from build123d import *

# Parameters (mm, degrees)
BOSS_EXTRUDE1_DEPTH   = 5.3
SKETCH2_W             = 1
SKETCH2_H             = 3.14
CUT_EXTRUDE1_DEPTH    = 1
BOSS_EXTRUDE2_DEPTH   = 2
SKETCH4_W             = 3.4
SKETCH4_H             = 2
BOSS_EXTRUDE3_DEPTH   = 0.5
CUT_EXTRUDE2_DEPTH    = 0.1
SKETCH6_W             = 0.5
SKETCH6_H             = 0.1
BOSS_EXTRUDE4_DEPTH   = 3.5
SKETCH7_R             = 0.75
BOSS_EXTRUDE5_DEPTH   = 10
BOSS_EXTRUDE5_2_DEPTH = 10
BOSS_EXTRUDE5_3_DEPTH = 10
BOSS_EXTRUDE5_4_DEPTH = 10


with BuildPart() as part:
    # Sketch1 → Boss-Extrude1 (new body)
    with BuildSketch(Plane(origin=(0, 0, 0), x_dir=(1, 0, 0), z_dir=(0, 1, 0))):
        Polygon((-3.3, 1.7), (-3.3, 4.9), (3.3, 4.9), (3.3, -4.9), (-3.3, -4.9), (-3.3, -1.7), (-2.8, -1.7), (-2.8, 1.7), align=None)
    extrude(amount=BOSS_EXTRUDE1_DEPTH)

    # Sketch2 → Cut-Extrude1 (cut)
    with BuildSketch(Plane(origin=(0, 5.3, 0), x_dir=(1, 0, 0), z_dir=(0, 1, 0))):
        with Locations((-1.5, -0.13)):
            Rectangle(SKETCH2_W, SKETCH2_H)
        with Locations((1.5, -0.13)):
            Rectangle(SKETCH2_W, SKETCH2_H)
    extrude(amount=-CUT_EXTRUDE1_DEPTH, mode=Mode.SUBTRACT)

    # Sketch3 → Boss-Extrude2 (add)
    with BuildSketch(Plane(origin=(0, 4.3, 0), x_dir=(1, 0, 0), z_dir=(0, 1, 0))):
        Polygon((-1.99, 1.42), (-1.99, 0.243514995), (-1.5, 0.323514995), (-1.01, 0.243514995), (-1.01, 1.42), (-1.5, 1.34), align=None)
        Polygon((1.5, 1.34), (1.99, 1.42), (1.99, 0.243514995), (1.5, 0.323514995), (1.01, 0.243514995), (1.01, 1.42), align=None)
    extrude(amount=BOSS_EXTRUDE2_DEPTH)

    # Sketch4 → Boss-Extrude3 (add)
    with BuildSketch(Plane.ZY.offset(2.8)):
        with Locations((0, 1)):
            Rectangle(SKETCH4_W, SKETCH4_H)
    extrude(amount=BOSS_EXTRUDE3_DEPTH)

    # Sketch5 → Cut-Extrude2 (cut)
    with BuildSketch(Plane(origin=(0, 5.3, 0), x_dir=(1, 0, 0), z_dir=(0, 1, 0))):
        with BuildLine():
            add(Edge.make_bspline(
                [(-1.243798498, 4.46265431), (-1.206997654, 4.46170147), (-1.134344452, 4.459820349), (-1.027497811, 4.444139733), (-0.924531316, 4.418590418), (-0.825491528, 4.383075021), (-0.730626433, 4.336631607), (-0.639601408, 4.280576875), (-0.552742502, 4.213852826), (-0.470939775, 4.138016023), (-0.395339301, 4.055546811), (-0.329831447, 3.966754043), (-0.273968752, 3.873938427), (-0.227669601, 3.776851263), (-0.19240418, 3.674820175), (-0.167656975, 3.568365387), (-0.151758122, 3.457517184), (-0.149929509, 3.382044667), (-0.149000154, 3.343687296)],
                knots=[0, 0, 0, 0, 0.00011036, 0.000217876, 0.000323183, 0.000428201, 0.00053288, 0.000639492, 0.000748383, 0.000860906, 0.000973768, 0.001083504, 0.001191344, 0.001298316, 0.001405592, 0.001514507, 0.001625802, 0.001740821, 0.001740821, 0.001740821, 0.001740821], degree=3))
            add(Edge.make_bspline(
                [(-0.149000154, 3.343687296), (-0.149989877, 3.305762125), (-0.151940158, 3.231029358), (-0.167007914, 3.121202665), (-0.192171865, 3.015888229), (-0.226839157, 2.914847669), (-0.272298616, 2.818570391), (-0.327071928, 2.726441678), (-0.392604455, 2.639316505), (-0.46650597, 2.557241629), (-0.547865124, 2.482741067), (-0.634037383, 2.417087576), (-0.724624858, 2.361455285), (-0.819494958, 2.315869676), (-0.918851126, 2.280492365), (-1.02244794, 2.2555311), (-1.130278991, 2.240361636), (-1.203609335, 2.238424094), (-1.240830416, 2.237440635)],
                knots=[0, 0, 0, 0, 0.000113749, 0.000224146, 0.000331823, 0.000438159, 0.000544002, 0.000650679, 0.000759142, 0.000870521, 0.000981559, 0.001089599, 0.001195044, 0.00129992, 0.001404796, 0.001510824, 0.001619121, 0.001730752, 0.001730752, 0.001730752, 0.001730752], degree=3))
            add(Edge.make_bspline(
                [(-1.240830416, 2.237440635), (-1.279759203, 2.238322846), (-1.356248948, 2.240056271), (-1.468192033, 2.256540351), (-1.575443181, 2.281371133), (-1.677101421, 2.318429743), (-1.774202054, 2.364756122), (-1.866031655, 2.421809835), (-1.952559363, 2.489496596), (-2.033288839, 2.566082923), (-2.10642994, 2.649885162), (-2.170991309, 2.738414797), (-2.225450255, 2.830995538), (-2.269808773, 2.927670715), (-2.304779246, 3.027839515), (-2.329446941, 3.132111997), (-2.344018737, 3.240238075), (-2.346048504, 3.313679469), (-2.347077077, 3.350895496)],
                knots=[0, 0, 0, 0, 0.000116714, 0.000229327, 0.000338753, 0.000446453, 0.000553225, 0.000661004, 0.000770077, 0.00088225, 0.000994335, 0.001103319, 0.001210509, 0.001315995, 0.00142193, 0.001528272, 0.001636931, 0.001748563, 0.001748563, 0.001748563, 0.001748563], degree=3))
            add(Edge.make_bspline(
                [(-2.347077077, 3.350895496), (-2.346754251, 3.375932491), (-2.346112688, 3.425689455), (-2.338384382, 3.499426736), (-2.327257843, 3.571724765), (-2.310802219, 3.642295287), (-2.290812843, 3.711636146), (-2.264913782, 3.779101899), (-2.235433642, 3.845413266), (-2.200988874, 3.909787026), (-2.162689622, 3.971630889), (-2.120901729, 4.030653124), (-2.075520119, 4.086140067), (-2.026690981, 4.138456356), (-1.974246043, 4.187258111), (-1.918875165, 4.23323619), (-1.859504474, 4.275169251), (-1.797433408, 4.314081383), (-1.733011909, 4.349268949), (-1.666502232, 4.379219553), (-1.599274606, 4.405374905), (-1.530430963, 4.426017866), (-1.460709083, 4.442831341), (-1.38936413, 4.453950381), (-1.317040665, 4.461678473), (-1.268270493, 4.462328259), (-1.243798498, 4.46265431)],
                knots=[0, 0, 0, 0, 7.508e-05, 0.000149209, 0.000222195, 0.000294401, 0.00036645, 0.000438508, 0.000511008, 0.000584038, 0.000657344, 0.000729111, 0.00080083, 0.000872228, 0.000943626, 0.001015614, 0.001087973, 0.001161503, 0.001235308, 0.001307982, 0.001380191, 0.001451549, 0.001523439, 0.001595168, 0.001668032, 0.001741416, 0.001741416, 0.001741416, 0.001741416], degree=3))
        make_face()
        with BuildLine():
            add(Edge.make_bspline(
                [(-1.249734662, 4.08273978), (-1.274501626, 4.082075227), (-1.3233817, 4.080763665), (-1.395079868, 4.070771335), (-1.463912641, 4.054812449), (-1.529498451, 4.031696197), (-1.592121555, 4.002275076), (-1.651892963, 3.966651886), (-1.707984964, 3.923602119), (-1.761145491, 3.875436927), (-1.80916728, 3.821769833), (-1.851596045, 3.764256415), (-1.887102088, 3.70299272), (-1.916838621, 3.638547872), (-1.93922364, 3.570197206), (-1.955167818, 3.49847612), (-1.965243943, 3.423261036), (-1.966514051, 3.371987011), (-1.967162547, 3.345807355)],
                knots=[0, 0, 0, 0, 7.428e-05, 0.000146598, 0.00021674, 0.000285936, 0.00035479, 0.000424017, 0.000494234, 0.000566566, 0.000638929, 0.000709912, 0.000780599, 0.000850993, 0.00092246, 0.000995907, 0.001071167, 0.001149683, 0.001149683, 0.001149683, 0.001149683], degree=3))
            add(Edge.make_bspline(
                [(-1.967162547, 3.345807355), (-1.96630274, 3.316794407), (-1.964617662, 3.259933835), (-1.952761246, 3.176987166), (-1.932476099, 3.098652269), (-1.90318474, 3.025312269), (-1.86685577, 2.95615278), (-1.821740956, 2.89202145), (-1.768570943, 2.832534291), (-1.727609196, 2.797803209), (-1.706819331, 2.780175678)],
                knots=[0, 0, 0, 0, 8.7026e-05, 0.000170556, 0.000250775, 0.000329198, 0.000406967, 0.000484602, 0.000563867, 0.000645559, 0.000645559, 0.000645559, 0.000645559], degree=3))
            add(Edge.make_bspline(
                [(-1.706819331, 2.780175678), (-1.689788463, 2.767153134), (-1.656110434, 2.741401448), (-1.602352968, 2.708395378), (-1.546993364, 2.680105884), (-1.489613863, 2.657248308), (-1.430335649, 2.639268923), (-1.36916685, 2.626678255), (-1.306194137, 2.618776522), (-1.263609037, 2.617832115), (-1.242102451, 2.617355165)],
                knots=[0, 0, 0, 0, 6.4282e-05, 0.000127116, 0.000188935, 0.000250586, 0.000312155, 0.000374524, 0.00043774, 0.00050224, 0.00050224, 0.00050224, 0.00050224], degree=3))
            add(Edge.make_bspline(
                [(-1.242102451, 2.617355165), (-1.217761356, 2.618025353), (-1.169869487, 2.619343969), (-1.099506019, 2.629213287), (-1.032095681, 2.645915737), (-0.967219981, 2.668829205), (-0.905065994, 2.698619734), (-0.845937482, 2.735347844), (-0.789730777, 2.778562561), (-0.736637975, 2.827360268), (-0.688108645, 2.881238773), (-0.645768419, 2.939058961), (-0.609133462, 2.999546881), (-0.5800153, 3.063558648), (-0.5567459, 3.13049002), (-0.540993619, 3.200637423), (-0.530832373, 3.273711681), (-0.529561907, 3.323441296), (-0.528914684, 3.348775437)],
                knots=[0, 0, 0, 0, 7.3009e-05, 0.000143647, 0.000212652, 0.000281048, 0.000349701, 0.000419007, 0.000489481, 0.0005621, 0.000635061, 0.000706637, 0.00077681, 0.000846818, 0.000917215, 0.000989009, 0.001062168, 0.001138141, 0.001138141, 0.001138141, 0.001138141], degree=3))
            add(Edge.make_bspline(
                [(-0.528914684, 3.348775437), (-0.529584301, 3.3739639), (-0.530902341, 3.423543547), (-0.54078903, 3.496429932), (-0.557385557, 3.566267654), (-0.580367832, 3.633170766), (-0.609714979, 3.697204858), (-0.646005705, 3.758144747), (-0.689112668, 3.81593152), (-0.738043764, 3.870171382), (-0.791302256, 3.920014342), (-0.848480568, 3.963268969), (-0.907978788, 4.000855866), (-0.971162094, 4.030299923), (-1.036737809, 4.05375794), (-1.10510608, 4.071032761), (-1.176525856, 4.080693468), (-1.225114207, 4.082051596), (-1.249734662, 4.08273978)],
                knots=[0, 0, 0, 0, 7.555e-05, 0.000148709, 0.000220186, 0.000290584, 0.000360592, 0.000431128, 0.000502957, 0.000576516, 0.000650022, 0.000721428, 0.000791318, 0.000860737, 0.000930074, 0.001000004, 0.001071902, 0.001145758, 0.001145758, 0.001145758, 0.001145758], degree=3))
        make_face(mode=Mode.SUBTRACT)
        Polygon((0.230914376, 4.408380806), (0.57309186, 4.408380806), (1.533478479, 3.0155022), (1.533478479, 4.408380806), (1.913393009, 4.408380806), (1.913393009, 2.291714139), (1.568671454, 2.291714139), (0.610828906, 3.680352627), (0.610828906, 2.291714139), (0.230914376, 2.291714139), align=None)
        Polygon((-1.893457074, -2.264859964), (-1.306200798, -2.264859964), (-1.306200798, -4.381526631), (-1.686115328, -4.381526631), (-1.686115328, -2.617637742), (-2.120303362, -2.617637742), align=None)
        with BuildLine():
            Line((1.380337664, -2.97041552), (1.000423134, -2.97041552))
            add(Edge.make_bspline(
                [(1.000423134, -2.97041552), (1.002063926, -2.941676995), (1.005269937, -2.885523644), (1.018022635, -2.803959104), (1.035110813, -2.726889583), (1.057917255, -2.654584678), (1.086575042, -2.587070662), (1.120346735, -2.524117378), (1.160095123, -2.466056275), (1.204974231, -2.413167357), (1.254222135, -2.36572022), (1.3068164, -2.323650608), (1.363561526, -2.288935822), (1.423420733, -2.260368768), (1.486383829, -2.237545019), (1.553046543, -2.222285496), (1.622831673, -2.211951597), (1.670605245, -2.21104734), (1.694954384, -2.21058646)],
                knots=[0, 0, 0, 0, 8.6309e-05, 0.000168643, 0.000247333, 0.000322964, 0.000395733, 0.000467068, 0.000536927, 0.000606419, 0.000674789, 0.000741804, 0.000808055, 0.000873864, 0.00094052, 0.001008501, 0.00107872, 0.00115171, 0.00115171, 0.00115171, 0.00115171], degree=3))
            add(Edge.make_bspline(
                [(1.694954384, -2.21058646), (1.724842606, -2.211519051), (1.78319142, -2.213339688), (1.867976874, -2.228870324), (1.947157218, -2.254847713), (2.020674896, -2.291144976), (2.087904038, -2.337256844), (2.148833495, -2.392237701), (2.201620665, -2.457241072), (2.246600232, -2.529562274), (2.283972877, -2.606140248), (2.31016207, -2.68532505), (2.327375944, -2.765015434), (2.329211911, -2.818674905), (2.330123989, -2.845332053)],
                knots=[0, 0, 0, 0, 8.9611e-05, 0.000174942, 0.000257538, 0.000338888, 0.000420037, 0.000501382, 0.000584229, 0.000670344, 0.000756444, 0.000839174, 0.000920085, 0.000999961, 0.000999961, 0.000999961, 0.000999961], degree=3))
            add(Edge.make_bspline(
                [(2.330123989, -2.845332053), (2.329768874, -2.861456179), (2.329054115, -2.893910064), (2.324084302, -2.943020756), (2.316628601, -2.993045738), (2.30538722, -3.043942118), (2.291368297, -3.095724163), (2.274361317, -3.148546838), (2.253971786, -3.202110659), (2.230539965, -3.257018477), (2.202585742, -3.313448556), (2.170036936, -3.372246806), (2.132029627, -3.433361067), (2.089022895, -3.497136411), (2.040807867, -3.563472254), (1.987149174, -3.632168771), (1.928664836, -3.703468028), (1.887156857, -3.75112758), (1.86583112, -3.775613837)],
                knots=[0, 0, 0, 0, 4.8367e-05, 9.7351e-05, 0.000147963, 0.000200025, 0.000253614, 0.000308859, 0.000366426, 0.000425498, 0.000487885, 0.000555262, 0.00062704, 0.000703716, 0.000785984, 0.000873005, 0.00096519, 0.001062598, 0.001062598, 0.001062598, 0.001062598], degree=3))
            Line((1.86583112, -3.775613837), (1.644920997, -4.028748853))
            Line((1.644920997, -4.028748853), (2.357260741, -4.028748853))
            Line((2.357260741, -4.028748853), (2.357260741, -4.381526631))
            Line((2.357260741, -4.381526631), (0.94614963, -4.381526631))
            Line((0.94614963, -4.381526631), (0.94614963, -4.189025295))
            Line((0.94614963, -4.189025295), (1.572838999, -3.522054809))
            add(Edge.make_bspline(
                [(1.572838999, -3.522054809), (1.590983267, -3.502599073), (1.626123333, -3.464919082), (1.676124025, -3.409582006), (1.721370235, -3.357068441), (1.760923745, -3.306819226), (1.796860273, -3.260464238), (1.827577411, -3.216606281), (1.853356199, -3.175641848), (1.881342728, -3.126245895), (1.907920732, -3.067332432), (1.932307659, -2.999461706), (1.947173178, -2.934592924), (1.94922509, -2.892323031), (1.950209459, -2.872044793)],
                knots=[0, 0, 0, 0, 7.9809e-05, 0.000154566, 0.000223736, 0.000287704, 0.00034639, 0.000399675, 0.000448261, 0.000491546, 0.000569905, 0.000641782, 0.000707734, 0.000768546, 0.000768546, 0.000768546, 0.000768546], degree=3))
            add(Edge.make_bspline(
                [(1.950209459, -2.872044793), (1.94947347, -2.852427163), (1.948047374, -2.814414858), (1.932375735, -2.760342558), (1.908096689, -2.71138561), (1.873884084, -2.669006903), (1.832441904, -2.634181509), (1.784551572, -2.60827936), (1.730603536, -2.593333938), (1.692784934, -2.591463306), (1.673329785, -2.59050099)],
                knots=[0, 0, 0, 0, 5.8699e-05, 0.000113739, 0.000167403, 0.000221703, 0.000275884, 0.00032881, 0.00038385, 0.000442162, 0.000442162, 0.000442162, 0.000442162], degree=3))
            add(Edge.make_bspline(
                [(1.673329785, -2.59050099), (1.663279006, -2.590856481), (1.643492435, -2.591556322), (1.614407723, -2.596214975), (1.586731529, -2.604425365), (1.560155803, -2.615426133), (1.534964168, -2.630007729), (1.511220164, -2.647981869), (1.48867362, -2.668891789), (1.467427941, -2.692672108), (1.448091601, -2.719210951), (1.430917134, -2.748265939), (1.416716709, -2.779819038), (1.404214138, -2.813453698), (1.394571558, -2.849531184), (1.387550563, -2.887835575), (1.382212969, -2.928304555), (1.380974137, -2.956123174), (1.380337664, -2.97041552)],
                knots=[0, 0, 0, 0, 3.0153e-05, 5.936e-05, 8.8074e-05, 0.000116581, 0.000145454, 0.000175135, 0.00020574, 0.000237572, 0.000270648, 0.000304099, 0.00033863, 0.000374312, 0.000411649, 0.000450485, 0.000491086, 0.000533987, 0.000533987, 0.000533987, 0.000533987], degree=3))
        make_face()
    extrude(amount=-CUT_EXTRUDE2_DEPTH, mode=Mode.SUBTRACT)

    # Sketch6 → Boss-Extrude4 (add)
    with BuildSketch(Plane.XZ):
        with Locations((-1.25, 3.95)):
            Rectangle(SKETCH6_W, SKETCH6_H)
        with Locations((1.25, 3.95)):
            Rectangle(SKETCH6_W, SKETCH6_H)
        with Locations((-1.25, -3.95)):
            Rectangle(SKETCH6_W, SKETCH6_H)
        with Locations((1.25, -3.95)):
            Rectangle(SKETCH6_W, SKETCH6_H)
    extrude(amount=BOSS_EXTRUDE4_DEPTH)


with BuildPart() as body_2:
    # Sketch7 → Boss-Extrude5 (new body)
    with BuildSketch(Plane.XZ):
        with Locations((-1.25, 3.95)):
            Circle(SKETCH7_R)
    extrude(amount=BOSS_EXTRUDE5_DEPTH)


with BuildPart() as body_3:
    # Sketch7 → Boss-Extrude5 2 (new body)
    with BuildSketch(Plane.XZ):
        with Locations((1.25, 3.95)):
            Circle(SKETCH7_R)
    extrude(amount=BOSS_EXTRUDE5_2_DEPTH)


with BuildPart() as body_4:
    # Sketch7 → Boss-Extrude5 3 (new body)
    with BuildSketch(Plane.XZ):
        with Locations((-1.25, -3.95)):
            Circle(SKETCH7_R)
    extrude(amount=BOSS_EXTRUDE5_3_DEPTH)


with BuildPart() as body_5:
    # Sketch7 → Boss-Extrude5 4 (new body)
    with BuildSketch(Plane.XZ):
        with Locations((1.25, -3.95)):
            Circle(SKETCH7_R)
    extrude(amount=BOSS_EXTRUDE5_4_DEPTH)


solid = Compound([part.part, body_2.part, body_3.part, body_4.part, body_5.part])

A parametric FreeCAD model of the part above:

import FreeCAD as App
import Part
import Sketcher
from FreeCAD import Vector
Q = App.Units.Quantity


def add_polygon(sketch, points):
    """Adds a closed chain of lines whose ends are joined by coincident constraints."""
    first, n = sketch.GeometryCount, len(points)
    for a, b in zip(points, points[1:] + points[:1]):
        sketch.addGeometry(Part.LineSegment(App.Vector(*a, 0), App.Vector(*b, 0)), False)
    for i in range(n):
        sketch.addConstraint(Sketcher.Constraint("Coincident", first + i, 2, first + (i + 1) % n, 1))

doc = App.newDocument("Part")
body = doc.addObject("PartDesign::Body", "Body")

sketch1 = doc.addObject("Sketcher::SketchObject", "Sketch")
body.addObject(sketch1)
sketch1.AttachmentSupport = (doc.XZ_Plane, [""])
sketch1.MapMode = "FlatFace"
add_polygon(sketch1, [(-3.3, -4.9), (-3.3, -1.7), (-2.8, -1.7), (-2.8, 1.7), (-3.3, 1.7), (-3.3, 4.9), (3.3, 4.9), (3.3, -4.9)])
sketch1.addConstraint([
    Sketcher.Constraint("Vertical", 0),
    Sketcher.Constraint("Horizontal", 1),
    Sketcher.Constraint("Vertical", 2),
    Sketcher.Constraint("Horizontal", 3),
    Sketcher.Constraint("Vertical", 4),
    Sketcher.Constraint("Horizontal", 5),
    Sketcher.Constraint("Vertical", 6),
    Sketcher.Constraint("Horizontal", 7),
    Sketcher.Constraint("Symmetric", 4, 2, 6, 2, -1, 1),
    Sketcher.Constraint("Symmetric", 0, 2, 3, 2, -1),
    Sketcher.Constraint("DistanceX", 1, 1, 1, 2, Q("0.5 mm")),
    Sketcher.Constraint("DistanceX", 5, 1, 5, 2, Q("6.6 mm")),
    Sketcher.Constraint("DistanceY", 0, 1, 0, 2, Q("3.2 mm")),
    Sketcher.Constraint("DistanceY", 2, 1, 2, 2, Q("3.4 mm")),
])
pad1 = doc.addObject("PartDesign::Pad", "Pad")
body.addObject(pad1)
pad1.Profile = sketch1
pad1.Length = 5.3
pad1.Reversed = True

sketch2 = doc.addObject("Sketcher::SketchObject", "Sketch001")
body.addObject(sketch2)
sketch2.AttachmentSupport = (doc.XZ_Plane, [""])
sketch2.MapMode = "FlatFace"
sketch2.AttachmentOffset = App.Placement(Vector(0, 0, -5.3), App.Rotation())
add_polygon(sketch2, [(-2, -1.4), (-2, 1.7), (-1, 1.7), (-1, -1.4)])
add_polygon(sketch2, [(1, -1.4), (1, 1.7), (2, 1.7), (2, -1.4)])
sketch2.addConstraint([
    Sketcher.Constraint("Vertical", 0),
    Sketcher.Constraint("Horizontal", 1),
    Sketcher.Constraint("Vertical", 2),
    Sketcher.Constraint("Horizontal", 3),
    Sketcher.Constraint("Vertical", 4),
    Sketcher.Constraint("Horizontal", 5),
    Sketcher.Constraint("Vertical", 6),
    Sketcher.Constraint("Horizontal", 7),
    Sketcher.Constraint("Symmetric", 1, 2, 4, 2, -2),
    Sketcher.Constraint("Symmetric", 3, 2, 6, 2, -2),
    Sketcher.Constraint("DistanceX", 1, 1, 1, 2, Q("1 mm")),
    Sketcher.Constraint("DistanceX", 0, 2, -1, 1, Q("2 mm")),
    Sketcher.Constraint("DistanceY", 0, 1, 0, 2, Q("3.14 mm")),
    Sketcher.Constraint("DistanceY", -1, 1, 0, 2, Q("1.7 mm")),
])
pocket1 = doc.addObject("PartDesign::Pocket", "Pocket")
body.addObject(pocket1)
pocket1.Profile = sketch2
pocket1.Length = 1
pocket1.Reversed = True

sketch3 = doc.addObject("Sketcher::SketchObject", "Sketch002")
body.addObject(sketch3)
sketch3.AttachmentSupport = (doc.XZ_Plane, [""])
sketch3.MapMode = "FlatFace"
sketch3.AttachmentOffset = App.Placement(Vector(0, 0, -4.3), App.Rotation())
add_polygon(sketch3, [(-1.99, -1.42), (-1.99, -0.24), (-1.5, -0.32), (-1.01, -0.24), (-1.01, -1.42), (-1.5, -1.34)])
add_polygon(sketch3, [(1.99, -1.42), (1.5, -1.34), (1.01, -1.42), (1.01, -0.24), (1.5, -0.32), (1.99, -0.24)])
sketch3.addConstraint([
    Sketcher.Constraint("Vertical", 0),
    Sketcher.Constraint("Vertical", 3),
    Sketcher.Constraint("Vertical", 8),
    Sketcher.Constraint("Vertical", 11),
    Sketcher.Constraint("Symmetric", 4, 2, 6, 2, -2),
    Sketcher.Constraint("Symmetric", 3, 2, 7, 2, -2),
    Sketcher.Constraint("Symmetric", 1, 2, 9, 2, -2),
    Sketcher.Constraint("Symmetric", 0, 2, 10, 2, -2),
    Sketcher.Constraint("Parallel", 1, 4),
    Sketcher.Constraint("Parallel", 2, 5),
    Sketcher.Constraint("Parallel", 4, 6),
    Sketcher.Constraint("Parallel", 5, 7),
    Sketcher.Constraint("Parallel", 6, 9),
    Sketcher.Constraint("Horizontal", 0, 2, 2, 2),
    Sketcher.Constraint("Horizontal", 3, 2, 5, 2),
    Sketcher.Constraint("DistanceX", 4, 2, 6, 2, Q("3 mm")),
    Sketcher.Constraint("DistanceX", 0, 2, -1, 1, Q("1.99 mm")),
    Sketcher.Constraint("DistanceY", 3, 2, -1, 1, Q("1.42 mm")),
    Sketcher.Constraint("DistanceY", 4, 2, -1, 1, Q("1.34 mm")),
    Sketcher.Constraint("DistanceY", 0, 1, 0, 2, Q("1.176485 mm")),
])
pad2 = doc.addObject("PartDesign::Pad", "Pad001")
body.addObject(pad2)
pad2.Profile = sketch3
pad2.Length = 2
pad2.Reversed = True

sketch4 = doc.addObject("Sketcher::SketchObject", "Sketch003")
body.addObject(sketch4)
sketch4.AttachmentSupport = (doc.YZ_Plane, [""])
sketch4.MapMode = "FlatFace"
sketch4.AttachmentOffset = App.Placement(Vector(0, 0, -2.8), App.Rotation())
add_polygon(sketch4, [(2, -1.7), (0, -1.7), (0, 1.7), (2, 1.7)])
sketch4.addConstraint([
    Sketcher.Constraint("Horizontal", 0),
    Sketcher.Constraint("Vertical", 1),
    Sketcher.Constraint("Horizontal", 2),
    Sketcher.Constraint("Vertical", 3),
    Sketcher.Constraint("Symmetric", 0, 2, 1, 2, -1, 1),
    Sketcher.Constraint("DistanceX", 0, 2, 0, 1, Q("2 mm")),
    Sketcher.Constraint("DistanceY", 1, 1, 1, 2, Q("3.4 mm")),
])
pad3 = doc.addObject("PartDesign::Pad", "Pad002")
body.addObject(pad3)
pad3.Profile = sketch4
pad3.Length = 0.5
pad3.Reversed = True

sketch5 = doc.addObject("Sketcher::SketchObject", "Sketch004")
body.addObject(sketch5)
sketch5.AttachmentSupport = (doc.XZ_Plane, [""])
sketch5.MapMode = "FlatFace"
sketch5.AttachmentOffset = App.Placement(Vector(0, 0, -5.3), App.Rotation())
sketch5.addGeometry(Part.BSplineCurve([Vector(-1.243798, -4.462654, 0), Vector(-1.206998, -4.461701, 0), Vector(-1.134344, -4.45982, 0), Vector(-1.027498, -4.44414, 0), Vector(-0.924531, -4.41859, 0), Vector(-0.825492, -4.383075, 0), Vector(-0.730626, -4.336632, 0), Vector(-0.639601, -4.280577, 0), Vector(-0.552743, -4.213853, 0), Vector(-0.47094, -4.138016, 0), Vector(-0.395339, -4.055547, 0), Vector(-0.329831, -3.966754, 0), Vector(-0.273969, -3.873938, 0), Vector(-0.22767, -3.776851, 0), Vector(-0.192404, -3.67482, 0), Vector(-0.167657, -3.568365, 0), Vector(-0.151758, -3.457517, 0), Vector(-0.14993, -3.382045, 0), Vector(-0.149, -3.343687, 0)], [4, 1, 1, 1, 1, 1, 1, 1, 1, 1, 1, 1, 1, 1, 1, 1, 4], [0, 0.00011036, 0.000217876, 0.000323183, 0.000428201, 0.00053288, 0.000639492, 0.000748383, 0.000860906, 0.000973768, 0.001083504, 0.001191344, 0.001298316, 0.001405592, 0.001514507, 0.001625802, 0.001740821], False, 3, [1, 1, 1, 1, 1, 1, 1, 1, 1, 1, 1, 1, 1, 1, 1, 1, 1, 1, 1], False), False)
sketch5.addGeometry(Part.BSplineCurve([Vector(-2.347077, -3.350895, 0), Vector(-2.346754, -3.375932, 0), Vector(-2.346113, -3.425689, 0), Vector(-2.338384, -3.499427, 0), Vector(-2.327258, -3.571725, 0), Vector(-2.310802, -3.642295, 0), Vector(-2.290813, -3.711636, 0), Vector(-2.264914, -3.779102, 0), Vector(-2.235434, -3.845413, 0), Vector(-2.200989, -3.909787, 0), Vector(-2.16269, -3.971631, 0), Vector(-2.120902, -4.030653, 0), Vector(-2.07552, -4.08614, 0), Vector(-2.026691, -4.138456, 0), Vector(-1.974246, -4.187258, 0), Vector(-1.918875, -4.233236, 0), Vector(-1.859504, -4.275169, 0), Vector(-1.797433, -4.314081, 0), Vector(-1.733012, -4.349269, 0), Vector(-1.666502, -4.37922, 0), Vector(-1.599275, -4.405375, 0), Vector(-1.530431, -4.426018, 0), Vector(-1.460709, -4.442831, 0), Vector(-1.389364, -4.45395, 0), Vector(-1.317041, -4.461678, 0), Vector(-1.26827, -4.462328, 0), Vector(-1.243798, -4.462654, 0)], [4, 1, 1, 1, 1, 1, 1, 1, 1, 1, 1, 1, 1, 1, 1, 1, 1, 1, 1, 1, 1, 1, 1, 1, 4], [0, 0.00007508, 0.000149209, 0.000222195, 0.000294401, 0.00036645, 0.000438508, 0.000511008, 0.000584038, 0.000657344, 0.000729111, 0.00080083, 0.000872228, 0.000943626, 0.001015614, 0.001087973, 0.001161503, 0.001235308, 0.001307982, 0.001380191, 0.001451549, 0.001523439, 0.001595168, 0.001668032, 0.001741416], False, 3, [1, 1, 1, 1, 1, 1, 1, 1, 1, 1, 1, 1, 1, 1, 1, 1, 1, 1, 1, 1, 1, 1, 1, 1, 1, 1, 1], False), False)
sketch5.addGeometry(Part.BSplineCurve([Vector(-1.24083, -2.237441, 0), Vector(-1.279759, -2.238323, 0), Vector(-1.356249, -2.240056, 0), Vector(-1.468192, -2.25654, 0), Vector(-1.575443, -2.281371, 0), Vector(-1.677101, -2.31843, 0), Vector(-1.774202, -2.364756, 0), Vector(-1.866032, -2.42181, 0), Vector(-1.952559, -2.489497, 0), Vector(-2.033289, -2.566083, 0), Vector(-2.10643, -2.649885, 0), Vector(-2.170991, -2.738415, 0), Vector(-2.22545, -2.830996, 0), Vector(-2.269809, -2.927671, 0), Vector(-2.304779, -3.02784, 0), Vector(-2.329447, -3.132112, 0), Vector(-2.344019, -3.240238, 0), Vector(-2.346049, -3.313679, 0), Vector(-2.347077, -3.350895, 0)], [4, 1, 1, 1, 1, 1, 1, 1, 1, 1, 1, 1, 1, 1, 1, 1, 4], [0, 0.000116714, 0.000229327, 0.000338753, 0.000446453, 0.000553225, 0.000661004, 0.000770077, 0.00088225, 0.000994335, 0.001103319, 0.001210509, 0.001315995, 0.00142193, 0.001528272, 0.001636931, 0.001748563], False, 3, [1, 1, 1, 1, 1, 1, 1, 1, 1, 1, 1, 1, 1, 1, 1, 1, 1, 1, 1], False), False)
sketch5.addGeometry(Part.BSplineCurve([Vector(-0.149, -3.343687, 0), Vector(-0.14999, -3.305762, 0), Vector(-0.15194, -3.231029, 0), Vector(-0.167008, -3.121203, 0), Vector(-0.192172, -3.015888, 0), Vector(-0.226839, -2.914848, 0), Vector(-0.272299, -2.81857, 0), Vector(-0.327072, -2.726442, 0), Vector(-0.392604, -2.639317, 0), Vector(-0.466506, -2.557242, 0), Vector(-0.547865, -2.482741, 0), Vector(-0.634037, -2.417088, 0), Vector(-0.724625, -2.361455, 0), Vector(-0.819495, -2.31587, 0), Vector(-0.918851, -2.280492, 0), Vector(-1.022448, -2.255531, 0), Vector(-1.130279, -2.240362, 0), Vector(-1.203609, -2.238424, 0), Vector(-1.24083, -2.237441, 0)], [4, 1, 1, 1, 1, 1, 1, 1, 1, 1, 1, 1, 1, 1, 1, 1, 4], [0, 0.000113749, 0.000224146, 0.000331823, 0.000438159, 0.000544002, 0.000650679, 0.000759142, 0.000870521, 0.000981559, 0.001089599, 0.001195044, 0.00129992, 0.001404796, 0.001510824, 0.001619121, 0.001730752], False, 3, [1, 1, 1, 1, 1, 1, 1, 1, 1, 1, 1, 1, 1, 1, 1, 1, 1, 1, 1], False), False)
sketch5.addGeometry(Part.BSplineCurve([Vector(-0.528915, -3.348775, 0), Vector(-0.529584, -3.373964, 0), Vector(-0.530902, -3.423544, 0), Vector(-0.540789, -3.49643, 0), Vector(-0.557386, -3.566268, 0), Vector(-0.580368, -3.633171, 0), Vector(-0.609715, -3.697205, 0), Vector(-0.646006, -3.758145, 0), Vector(-0.689113, -3.815932, 0), Vector(-0.738044, -3.870171, 0), Vector(-0.791302, -3.920014, 0), Vector(-0.848481, -3.963269, 0), Vector(-0.907979, -4.000856, 0), Vector(-0.971162, -4.0303, 0), Vector(-1.036738, -4.053758, 0), Vector(-1.105106, -4.071033, 0), Vector(-1.176526, -4.080693, 0), Vector(-1.225114, -4.082052, 0), Vector(-1.249735, -4.08274, 0)], [4, 1, 1, 1, 1, 1, 1, 1, 1, 1, 1, 1, 1, 1, 1, 1, 4], [0, 0.00007555, 0.000148709, 0.000220186, 0.000290584, 0.000360592, 0.000431128, 0.000502957, 0.000576516, 0.000650022, 0.000721428, 0.000791318, 0.000860737, 0.000930074, 0.001000004, 0.001071902, 0.001145758], False, 3, [1, 1, 1, 1, 1, 1, 1, 1, 1, 1, 1, 1, 1, 1, 1, 1, 1, 1, 1], False), False)
sketch5.addGeometry(Part.BSplineCurve([Vector(-1.242102, -2.617355, 0), Vector(-1.217761, -2.618025, 0), Vector(-1.169869, -2.619344, 0), Vector(-1.099506, -2.629213, 0), Vector(-1.032096, -2.645916, 0), Vector(-0.96722, -2.668829, 0), Vector(-0.905066, -2.69862, 0), Vector(-0.845937, -2.735348, 0), Vector(-0.789731, -2.778563, 0), Vector(-0.736638, -2.82736, 0), Vector(-0.688109, -2.881239, 0), Vector(-0.645768, -2.939059, 0), Vector(-0.609133, -2.999547, 0), Vector(-0.580015, -3.063559, 0), Vector(-0.556746, -3.13049, 0), Vector(-0.540994, -3.200637, 0), Vector(-0.530832, -3.273712, 0), Vector(-0.529562, -3.323441, 0), Vector(-0.528915, -3.348775, 0)], [4, 1, 1, 1, 1, 1, 1, 1, 1, 1, 1, 1, 1, 1, 1, 1, 4], [0, 0.000073009, 0.000143647, 0.000212652, 0.000281048, 0.000349701, 0.000419007, 0.000489481, 0.0005621, 0.000635061, 0.000706637, 0.00077681, 0.000846818, 0.000917215, 0.000989009, 0.001062168, 0.001138141], False, 3, [1, 1, 1, 1, 1, 1, 1, 1, 1, 1, 1, 1, 1, 1, 1, 1, 1, 1, 1], False), False)
sketch5.addGeometry(Part.BSplineCurve([Vector(-1.706819, -2.780176, 0), Vector(-1.689788, -2.767153, 0), Vector(-1.65611, -2.741401, 0), Vector(-1.602353, -2.708395, 0), Vector(-1.546993, -2.680106, 0), Vector(-1.489614, -2.657248, 0), Vector(-1.430336, -2.639269, 0), Vector(-1.369167, -2.626678, 0), Vector(-1.306194, -2.618777, 0), Vector(-1.263609, -2.617832, 0), Vector(-1.242102, -2.617355, 0)], [4, 1, 1, 1, 1, 1, 1, 1, 4], [0, 0.000064282, 0.000127116, 0.000188935, 0.000250586, 0.000312155, 0.000374524, 0.00043774, 0.00050224], False, 3, [1, 1, 1, 1, 1, 1, 1, 1, 1, 1, 1], False), False)
sketch5.addGeometry(Part.BSplineCurve([Vector(-1.967163, -3.345807, 0), Vector(-1.966303, -3.316794, 0), Vector(-1.964618, -3.259934, 0), Vector(-1.952761, -3.176987, 0), Vector(-1.932476, -3.098652, 0), Vector(-1.903185, -3.025312, 0), Vector(-1.866856, -2.956153, 0), Vector(-1.821741, -2.892021, 0), Vector(-1.768571, -2.832534, 0), Vector(-1.727609, -2.797803, 0), Vector(-1.706819, -2.780176, 0)], [4, 1, 1, 1, 1, 1, 1, 1, 4], [0, 0.000087026, 0.000170556, 0.000250775, 0.000329198, 0.000406967, 0.000484602, 0.000563867, 0.000645559], False, 3, [1, 1, 1, 1, 1, 1, 1, 1, 1, 1, 1], False), False)
sketch5.addGeometry(Part.BSplineCurve([Vector(-1.249735, -4.08274, 0), Vector(-1.274502, -4.082075, 0), Vector(-1.323382, -4.080764, 0), Vector(-1.39508, -4.070771, 0), Vector(-1.463913, -4.054812, 0), Vector(-1.529498, -4.031696, 0), Vector(-1.592122, -4.002275, 0), Vector(-1.651893, -3.966652, 0), Vector(-1.707985, -3.923602, 0), Vector(-1.761145, -3.875437, 0), Vector(-1.809167, -3.82177, 0), Vector(-1.851596, -3.764256, 0), Vector(-1.887102, -3.702993, 0), Vector(-1.916839, -3.638548, 0), Vector(-1.939224, -3.570197, 0), Vector(-1.955168, -3.498476, 0), Vector(-1.965244, -3.423261, 0), Vector(-1.966514, -3.371987, 0), Vector(-1.967163, -3.345807, 0)], [4, 1, 1, 1, 1, 1, 1, 1, 1, 1, 1, 1, 1, 1, 1, 1, 4], [0, 0.00007428, 0.000146598, 0.00021674, 0.000285936, 0.00035479, 0.000424017, 0.000494234, 0.000566566, 0.000638929, 0.000709912, 0.000780599, 0.000850993, 0.00092246, 0.000995907, 0.001071167, 0.001149683], False, 3, [1, 1, 1, 1, 1, 1, 1, 1, 1, 1, 1, 1, 1, 1, 1, 1, 1, 1, 1], False), False)
add_polygon(sketch5, [(0.573092, -4.408381), (0.230914, -4.408381), (0.230914, -2.291714), (0.610829, -2.291714), (0.610829, -3.680353), (1.568671, -2.291714), (1.913393, -2.291714), (1.913393, -4.408381), (1.533478, -4.408381), (1.533478, -3.015502)])
add_polygon(sketch5, [(-1.306201, 2.26486), (-1.893457, 2.26486), (-2.120303, 2.617638), (-1.686115, 2.617638), (-1.686115, 4.381527), (-1.306201, 4.381527)])
sketch5.addGeometry(Part.LineSegment(Vector(1.000423, 2.970416, 0), Vector(1.380338, 2.970416, 0)), False)
sketch5.addGeometry(Part.BSplineCurve([Vector(1.67333, 2.590501, 0), Vector(1.663279, 2.590856, 0), Vector(1.643492, 2.591556, 0), Vector(1.614408, 2.596215, 0), Vector(1.586732, 2.604425, 0), Vector(1.560156, 2.615426, 0), Vector(1.534964, 2.630008, 0), Vector(1.51122, 2.647982, 0), Vector(1.488674, 2.668892, 0), Vector(1.467428, 2.692672, 0), Vector(1.448092, 2.719211, 0), Vector(1.430917, 2.748266, 0), Vector(1.416717, 2.779819, 0), Vector(1.404214, 2.813454, 0), Vector(1.394572, 2.849531, 0), Vector(1.387551, 2.887836, 0), Vector(1.382213, 2.928305, 0), Vector(1.380974, 2.956123, 0), Vector(1.380338, 2.970416, 0)], [4, 1, 1, 1, 1, 1, 1, 1, 1, 1, 1, 1, 1, 1, 1, 1, 4], [0, 0.000030153, 0.00005936, 0.000088074, 0.000116581, 0.000145454, 0.000175135, 0.00020574, 0.000237572, 0.000270648, 0.000304099, 0.00033863, 0.000374312, 0.000411649, 0.000450485, 0.000491086, 0.000533987], False, 3, [1, 1, 1, 1, 1, 1, 1, 1, 1, 1, 1, 1, 1, 1, 1, 1, 1, 1, 1], False), False)
sketch5.addGeometry(Part.BSplineCurve([Vector(1.950209, 2.872045, 0), Vector(1.949473, 2.852427, 0), Vector(1.948047, 2.814415, 0), Vector(1.932376, 2.760343, 0), Vector(1.908097, 2.711386, 0), Vector(1.873884, 2.669007, 0), Vector(1.832442, 2.634182, 0), Vector(1.784552, 2.608279, 0), Vector(1.730604, 2.593334, 0), Vector(1.692785, 2.591463, 0), Vector(1.67333, 2.590501, 0)], [4, 1, 1, 1, 1, 1, 1, 1, 4], [0, 0.000058699, 0.000113739, 0.000167403, 0.000221703, 0.000275884, 0.00032881, 0.00038385, 0.000442162], False, 3, [1, 1, 1, 1, 1, 1, 1, 1, 1, 1, 1], False), False)
sketch5.addGeometry(Part.BSplineCurve([Vector(1.572839, 3.522055, 0), Vector(1.590983, 3.502599, 0), Vector(1.626123, 3.464919, 0), Vector(1.676124, 3.409582, 0), Vector(1.72137, 3.357068, 0), Vector(1.760924, 3.306819, 0), Vector(1.79686, 3.260464, 0), Vector(1.827577, 3.216606, 0), Vector(1.853356, 3.175642, 0), Vector(1.881343, 3.126246, 0), Vector(1.907921, 3.067332, 0), Vector(1.932308, 2.999462, 0), Vector(1.947173, 2.934593, 0), Vector(1.949225, 2.892323, 0), Vector(1.950209, 2.872045, 0)], [4, 1, 1, 1, 1, 1, 1, 1, 1, 1, 1, 1, 4], [0, 0.000079809, 0.000154566, 0.000223736, 0.000287704, 0.00034639, 0.000399675, 0.000448261, 0.000491546, 0.000569905, 0.000641782, 0.000707734, 0.000768546], False, 3, [1, 1, 1, 1, 1, 1, 1, 1, 1, 1, 1, 1, 1, 1, 1], False), False)
sketch5.addGeometry(Part.LineSegment(Vector(1.572839, 3.522055, 0), Vector(0.94615, 4.189025, 0)), False)
sketch5.addGeometry(Part.LineSegment(Vector(0.94615, 4.189025, 0), Vector(0.94615, 4.381527, 0)), False)
sketch5.addGeometry(Part.LineSegment(Vector(0.94615, 4.381527, 0), Vector(2.357261, 4.381527, 0)), False)
sketch5.addGeometry(Part.LineSegment(Vector(2.357261, 4.381527, 0), Vector(2.357261, 4.028749, 0)), False)
sketch5.addGeometry(Part.LineSegment(Vector(2.357261, 4.028749, 0), Vector(1.644921, 4.028749, 0)), False)
sketch5.addGeometry(Part.LineSegment(Vector(1.644921, 4.028749, 0), Vector(1.865831, 3.775614, 0)), False)
sketch5.addGeometry(Part.BSplineCurve([Vector(2.330124, 2.845332, 0), Vector(2.329769, 2.861456, 0), Vector(2.329054, 2.89391, 0), Vector(2.324084, 2.943021, 0), Vector(2.316629, 2.993046, 0), Vector(2.305387, 3.043942, 0), Vector(2.291368, 3.095724, 0), Vector(2.274361, 3.148547, 0), Vector(2.253972, 3.202111, 0), Vector(2.23054, 3.257018, 0), Vector(2.202586, 3.313449, 0), Vector(2.170037, 3.372247, 0), Vector(2.13203, 3.433361, 0), Vector(2.089023, 3.497136, 0), Vector(2.040808, 3.563472, 0), Vector(1.987149, 3.632169, 0), Vector(1.928665, 3.703468, 0), Vector(1.887157, 3.751128, 0), Vector(1.865831, 3.775614, 0)], [4, 1, 1, 1, 1, 1, 1, 1, 1, 1, 1, 1, 1, 1, 1, 1, 4], [0, 0.000048367, 0.000097351, 0.000147963, 0.000200025, 0.000253614, 0.000308859, 0.000366426, 0.000425498, 0.000487885, 0.000555262, 0.00062704, 0.000703716, 0.000785984, 0.000873005, 0.00096519, 0.001062598], False, 3, [1, 1, 1, 1, 1, 1, 1, 1, 1, 1, 1, 1, 1, 1, 1, 1, 1, 1, 1], False), False)
sketch5.addGeometry(Part.BSplineCurve([Vector(1.694954, 2.210586, 0), Vector(1.724843, 2.211519, 0), Vector(1.783191, 2.21334, 0), Vector(1.867977, 2.22887, 0), Vector(1.947157, 2.254848, 0), Vector(2.020675, 2.291145, 0), Vector(2.087904, 2.337257, 0), Vector(2.148833, 2.392238, 0), Vector(2.201621, 2.457241, 0), Vector(2.2466, 2.529562, 0), Vector(2.283973, 2.60614, 0), Vector(2.310162, 2.685325, 0), Vector(2.327376, 2.765015, 0), Vector(2.329212, 2.818675, 0), Vector(2.330124, 2.845332, 0)], [4, 1, 1, 1, 1, 1, 1, 1, 1, 1, 1, 1, 4], [0, 0.000089611, 0.000174942, 0.000257538, 0.000338888, 0.000420037, 0.000501382, 0.000584229, 0.000670344, 0.000756444, 0.000839174, 0.000920085, 0.000999961], False, 3, [1, 1, 1, 1, 1, 1, 1, 1, 1, 1, 1, 1, 1, 1, 1], False), False)
sketch5.addGeometry(Part.BSplineCurve([Vector(1.000423, 2.970416, 0), Vector(1.002064, 2.941677, 0), Vector(1.00527, 2.885524, 0), Vector(1.018023, 2.803959, 0), Vector(1.035111, 2.72689, 0), Vector(1.057917, 2.654585, 0), Vector(1.086575, 2.587071, 0), Vector(1.120347, 2.524117, 0), Vector(1.160095, 2.466056, 0), Vector(1.204974, 2.413167, 0), Vector(1.254222, 2.36572, 0), Vector(1.306816, 2.323651, 0), Vector(1.363562, 2.288936, 0), Vector(1.423421, 2.260369, 0), Vector(1.486384, 2.237545, 0), Vector(1.553047, 2.222285, 0), Vector(1.622832, 2.211952, 0), Vector(1.670605, 2.211047, 0), Vector(1.694954, 2.210586, 0)], [4, 1, 1, 1, 1, 1, 1, 1, 1, 1, 1, 1, 1, 1, 1, 1, 4], [0, 0.000086309, 0.000168643, 0.000247333, 0.000322964, 0.000395733, 0.000467068, 0.000536927, 0.000606419, 0.000674789, 0.000741804, 0.000808055, 0.000873864, 0.00094052, 0.001008501, 0.00107872, 0.00115171], False, 3, [1, 1, 1, 1, 1, 1, 1, 1, 1, 1, 1, 1, 1, 1, 1, 1, 1, 1, 1], False), False)
sketch5.addConstraint([
    Sketcher.Constraint("Block", 0),
    Sketcher.Constraint("Block", 1),
    Sketcher.Constraint("Block", 2),
    Sketcher.Constraint("Block", 3),
    Sketcher.Constraint("Block", 4),
    Sketcher.Constraint("Block", 5),
    Sketcher.Constraint("Block", 6),
    Sketcher.Constraint("Block", 7),
    Sketcher.Constraint("Block", 8),
    Sketcher.Constraint("Block", 26),
    Sketcher.Constraint("Block", 27),
    Sketcher.Constraint("Block", 28),
    Sketcher.Constraint("Block", 35),
    Sketcher.Constraint("Block", 36),
    Sketcher.Constraint("Block", 37),
    Sketcher.Constraint("Coincident", 25, 2, 26, 2),
    Sketcher.Constraint("Coincident", 28, 1, 29, 1),
    Sketcher.Constraint("Coincident", 29, 2, 30, 1),
    Sketcher.Constraint("Coincident", 30, 2, 31, 1),
    Sketcher.Constraint("Coincident", 31, 2, 32, 1),
    Sketcher.Constraint("Coincident", 32, 2, 33, 1),
    Sketcher.Constraint("Coincident", 33, 2, 34, 1),
    Sketcher.Constraint("Coincident", 34, 2, 35, 2),
    Sketcher.Constraint("Coincident", 37, 1, 25, 1),
    Sketcher.Constraint("Horizontal", 9),
    Sketcher.Constraint("Vertical", 10),
    Sketcher.Constraint("Horizontal", 11),
    Sketcher.Constraint("Vertical", 12),
    Sketcher.Constraint("Horizontal", 14),
    Sketcher.Constraint("Vertical", 15),
    Sketcher.Constraint("Horizontal", 16),
    Sketcher.Constraint("Vertical", 17),
    Sketcher.Constraint("Horizontal", 19),
    Sketcher.Constraint("Horizontal", 21),
    Sketcher.Constraint("Vertical", 22),
    Sketcher.Constraint("Horizontal", 23),
    Sketcher.Constraint("Vertical", 24),
    Sketcher.Constraint("Vertical", 30),
    Sketcher.Constraint("Horizontal", 31),
    Sketcher.Constraint("Vertical", 32),
    Sketcher.Constraint("Horizontal", 33),
    Sketcher.Constraint("DistanceY", 30, 1, 30, 2, Q("0.192501 mm")),
    Sketcher.Constraint("Distance", 29, Q("0.915199 mm")),
    Sketcher.Constraint("DistanceX", 14, 1, 14, 2, Q("0.344722 mm")),
    Sketcher.Constraint("DistanceX", 21, 1, 21, 2, Q("0.434188 mm")),
    Sketcher.Constraint("DistanceX", 31, 1, 31, 2, Q("1.411111 mm")),
    Sketcher.Constraint("DistanceX", 33, 2, 33, 1, Q("0.71234 mm")),
    Sketcher.Constraint("DistanceY", 12, 2, 12, 1, Q("1.388638 mm")),
    Sketcher.Constraint("DistanceY", 17, 1, 17, 2, Q("1.392879 mm")),
    Sketcher.Constraint("DistanceY", 22, 1, 22, 2, Q("1.763889 mm")),
    Sketcher.Constraint("DistanceX", 23, 2, -1, 1, Q("1.306201 mm")),
    Sketcher.Constraint("DistanceX", 18, 2, 15, 2, Q("1.340301 mm")),
    Sketcher.Constraint("DistanceY", 29, 2, 23, 2, Q("0.192501 mm")),
    Sketcher.Constraint("Distance", 18, Q("1.691879 mm")),
    Sketcher.Constraint("DistanceX", 9, 2, 9, 1, Q("0.342177 mm")),
    Sketcher.Constraint("DistanceX", 11, 1, 11, 2, Q("0.379915 mm")),
    Sketcher.Constraint("DistanceX", 16, 2, 16, 1, Q("0.379915 mm")),
    Sketcher.Constraint("DistanceX", 19, 2, 19, 1, Q("0.587256 mm")),
    Sketcher.Constraint("DistanceX", 23, 1, 23, 2, Q("0.379915 mm")),
    Sketcher.Constraint("DistanceY", 10, 1, 10, 2, Q("2.116667 mm")),
    Sketcher.Constraint("DistanceY", 15, 2, 15, 1, Q("2.116667 mm")),
    Sketcher.Constraint("DistanceY", 24, 2, 24, 1, Q("2.116667 mm")),
    Sketcher.Constraint("DistanceY", 32, 2, 32, 1, Q("0.352778 mm")),
    Sketcher.Constraint("DistanceY", 9, 2, -1, 1, Q("4.408381 mm")),
    Sketcher.Constraint("DistanceX", -1, 1, 11, 2, Q("0.610829 mm")),
    Sketcher.Constraint("DistanceY", -1, 1, 19, 2, Q("2.26486 mm")),
])
pocket2 = doc.addObject("PartDesign::Pocket", "Pocket001")
body.addObject(pocket2)
pocket2.Profile = sketch5
pocket2.Length = 0.1
pocket2.Reversed = True

sketch6 = doc.addObject("Sketcher::SketchObject", "Sketch005")
body.addObject(sketch6)
sketch6.AttachmentSupport = (doc.XZ_Plane, [""])
sketch6.MapMode = "FlatFace"
add_polygon(sketch6, [(-1.5, 4), (-1.5, 3.9), (-1, 3.9), (-1, 4)])
add_polygon(sketch6, [(1, 4), (1, 3.9), (1.5, 3.9), (1.5, 4)])
add_polygon(sketch6, [(-1.5, -3.9), (-1.5, -4), (-1, -4), (-1, -3.9)])
add_polygon(sketch6, [(1, -3.9), (1, -4), (1.5, -4), (1.5, -3.9)])
sketch6.addConstraint([
    Sketcher.Constraint("Vertical", 0),
    Sketcher.Constraint("Horizontal", 1),
    Sketcher.Constraint("Vertical", 2),
    Sketcher.Constraint("Horizontal", 3),
    Sketcher.Constraint("Vertical", 4),
    Sketcher.Constraint("Horizontal", 5),
    Sketcher.Constraint("Vertical", 6),
    Sketcher.Constraint("Horizontal", 7),
    Sketcher.Constraint("Vertical", 8),
    Sketcher.Constraint("Horizontal", 9),
    Sketcher.Constraint("Vertical", 10),
    Sketcher.Constraint("Horizontal", 11),
    Sketcher.Constraint("Vertical", 12),
    Sketcher.Constraint("Horizontal", 13),
    Sketcher.Constraint("Vertical", 14),
    Sketcher.Constraint("Horizontal", 15),
    Sketcher.Constraint("Symmetric", 6, 2, 8, 2, -1, 1),
    Sketcher.Constraint("Symmetric", 4, 2, 10, 2, -1, 1),
    Sketcher.Constraint("Symmetric", 2, 2, 12, 2, -1, 1),
    Sketcher.Constraint("Symmetric", 0, 2, 14, 2, -1, 1),
    Sketcher.Constraint("Symmetric", 1, 2, 4, 2, -2),
    Sketcher.Constraint("Symmetric", 3, 2, 6, 2, -2),
    Sketcher.Constraint("DistanceX", 1, 1, 1, 2, Q("0.5 mm")),
    Sketcher.Constraint("DistanceY", 0, 2, 0, 1, Q("0.1 mm")),
    Sketcher.Constraint("DistanceX", 1, 2, -1, 1, Q("1 mm")),
    Sketcher.Constraint("DistanceY", -1, 1, 2, 2, Q("4 mm")),
])
pad4 = doc.addObject("PartDesign::Pad", "Pad003")
body.addObject(pad4)
pad4.Profile = sketch6
pad4.Length = 3.5
body2 = doc.addObject("PartDesign::Body", "Body001")

sketch7 = doc.addObject("Sketcher::SketchObject", "Sketch006")
body2.addObject(sketch7)
sketch7.AttachmentSupport = (doc.getObject("XZ_Plane001"), [""])
sketch7.MapMode = "FlatFace"
sketch7.addGeometry(Part.Circle(Vector(-1.2, 4, 0), Vector(0, 0, 1), 0.8), False)
sketch7.addConstraint([
    Sketcher.Constraint("Diameter", 0, Q("1.5 mm")),
    Sketcher.Constraint("DistanceX", 0, 3, -1, 1, Q("1.25 mm")),
    Sketcher.Constraint("DistanceY", -1, 1, 0, 3, Q("3.95 mm")),
])
pad5 = doc.addObject("PartDesign::Pad", "Pad004")
body2.addObject(pad5)
pad5.Profile = sketch7
pad5.Length = 10
body3 = doc.addObject("PartDesign::Body", "Body002")

sketch8 = doc.addObject("Sketcher::SketchObject", "Sketch007")
body3.addObject(sketch8)
sketch8.AttachmentSupport = (doc.getObject("XZ_Plane002"), [""])
sketch8.MapMode = "FlatFace"
sketch8.addGeometry(Part.Circle(Vector(1.2, 4, 0), Vector(0, 0, 1), 0.8), False)
sketch8.addConstraint([
    Sketcher.Constraint("Diameter", 0, Q("1.5 mm")),
    Sketcher.Constraint("DistanceX", -1, 1, 0, 3, Q("1.25 mm")),
    Sketcher.Constraint("DistanceY", -1, 1, 0, 3, Q("3.95 mm")),
])
pad6 = doc.addObject("PartDesign::Pad", "Pad005")
body3.addObject(pad6)
pad6.Profile = sketch8
pad6.Length = 10
body4 = doc.addObject("PartDesign::Body", "Body003")

sketch9 = doc.addObject("Sketcher::SketchObject", "Sketch008")
body4.addObject(sketch9)
sketch9.AttachmentSupport = (doc.getObject("XZ_Plane003"), [""])
sketch9.MapMode = "FlatFace"
sketch9.addGeometry(Part.Circle(Vector(-1.2, -4, 0), Vector(0, 0, 1), 0.8), False)
sketch9.addConstraint([
    Sketcher.Constraint("Diameter", 0, Q("1.5 mm")),
    Sketcher.Constraint("DistanceX", 0, 3, -1, 1, Q("1.25 mm")),
    Sketcher.Constraint("DistanceY", 0, 3, -1, 1, Q("3.95 mm")),
])
pad7 = doc.addObject("PartDesign::Pad", "Pad006")
body4.addObject(pad7)
pad7.Profile = sketch9
pad7.Length = 10
body5 = doc.addObject("PartDesign::Body", "Body004")

sketch10 = doc.addObject("Sketcher::SketchObject", "Sketch009")
body5.addObject(sketch10)
sketch10.AttachmentSupport = (doc.getObject("XZ_Plane004"), [""])
sketch10.MapMode = "FlatFace"
sketch10.addGeometry(Part.Circle(Vector(1.2, -4, 0), Vector(0, 0, 1), 0.8), False)
sketch10.addConstraint([
    Sketcher.Constraint("Diameter", 0, Q("1.5 mm")),
    Sketcher.Constraint("DistanceX", -1, 1, 0, 3, Q("1.25 mm")),
    Sketcher.Constraint("DistanceY", 0, 3, -1, 1, Q("3.95 mm")),
])
pad8 = doc.addObject("PartDesign::Pad", "Pad007")
body5.addObject(pad8)
pad8.Profile = sketch10
pad8.Length = 10

doc.recompute()
